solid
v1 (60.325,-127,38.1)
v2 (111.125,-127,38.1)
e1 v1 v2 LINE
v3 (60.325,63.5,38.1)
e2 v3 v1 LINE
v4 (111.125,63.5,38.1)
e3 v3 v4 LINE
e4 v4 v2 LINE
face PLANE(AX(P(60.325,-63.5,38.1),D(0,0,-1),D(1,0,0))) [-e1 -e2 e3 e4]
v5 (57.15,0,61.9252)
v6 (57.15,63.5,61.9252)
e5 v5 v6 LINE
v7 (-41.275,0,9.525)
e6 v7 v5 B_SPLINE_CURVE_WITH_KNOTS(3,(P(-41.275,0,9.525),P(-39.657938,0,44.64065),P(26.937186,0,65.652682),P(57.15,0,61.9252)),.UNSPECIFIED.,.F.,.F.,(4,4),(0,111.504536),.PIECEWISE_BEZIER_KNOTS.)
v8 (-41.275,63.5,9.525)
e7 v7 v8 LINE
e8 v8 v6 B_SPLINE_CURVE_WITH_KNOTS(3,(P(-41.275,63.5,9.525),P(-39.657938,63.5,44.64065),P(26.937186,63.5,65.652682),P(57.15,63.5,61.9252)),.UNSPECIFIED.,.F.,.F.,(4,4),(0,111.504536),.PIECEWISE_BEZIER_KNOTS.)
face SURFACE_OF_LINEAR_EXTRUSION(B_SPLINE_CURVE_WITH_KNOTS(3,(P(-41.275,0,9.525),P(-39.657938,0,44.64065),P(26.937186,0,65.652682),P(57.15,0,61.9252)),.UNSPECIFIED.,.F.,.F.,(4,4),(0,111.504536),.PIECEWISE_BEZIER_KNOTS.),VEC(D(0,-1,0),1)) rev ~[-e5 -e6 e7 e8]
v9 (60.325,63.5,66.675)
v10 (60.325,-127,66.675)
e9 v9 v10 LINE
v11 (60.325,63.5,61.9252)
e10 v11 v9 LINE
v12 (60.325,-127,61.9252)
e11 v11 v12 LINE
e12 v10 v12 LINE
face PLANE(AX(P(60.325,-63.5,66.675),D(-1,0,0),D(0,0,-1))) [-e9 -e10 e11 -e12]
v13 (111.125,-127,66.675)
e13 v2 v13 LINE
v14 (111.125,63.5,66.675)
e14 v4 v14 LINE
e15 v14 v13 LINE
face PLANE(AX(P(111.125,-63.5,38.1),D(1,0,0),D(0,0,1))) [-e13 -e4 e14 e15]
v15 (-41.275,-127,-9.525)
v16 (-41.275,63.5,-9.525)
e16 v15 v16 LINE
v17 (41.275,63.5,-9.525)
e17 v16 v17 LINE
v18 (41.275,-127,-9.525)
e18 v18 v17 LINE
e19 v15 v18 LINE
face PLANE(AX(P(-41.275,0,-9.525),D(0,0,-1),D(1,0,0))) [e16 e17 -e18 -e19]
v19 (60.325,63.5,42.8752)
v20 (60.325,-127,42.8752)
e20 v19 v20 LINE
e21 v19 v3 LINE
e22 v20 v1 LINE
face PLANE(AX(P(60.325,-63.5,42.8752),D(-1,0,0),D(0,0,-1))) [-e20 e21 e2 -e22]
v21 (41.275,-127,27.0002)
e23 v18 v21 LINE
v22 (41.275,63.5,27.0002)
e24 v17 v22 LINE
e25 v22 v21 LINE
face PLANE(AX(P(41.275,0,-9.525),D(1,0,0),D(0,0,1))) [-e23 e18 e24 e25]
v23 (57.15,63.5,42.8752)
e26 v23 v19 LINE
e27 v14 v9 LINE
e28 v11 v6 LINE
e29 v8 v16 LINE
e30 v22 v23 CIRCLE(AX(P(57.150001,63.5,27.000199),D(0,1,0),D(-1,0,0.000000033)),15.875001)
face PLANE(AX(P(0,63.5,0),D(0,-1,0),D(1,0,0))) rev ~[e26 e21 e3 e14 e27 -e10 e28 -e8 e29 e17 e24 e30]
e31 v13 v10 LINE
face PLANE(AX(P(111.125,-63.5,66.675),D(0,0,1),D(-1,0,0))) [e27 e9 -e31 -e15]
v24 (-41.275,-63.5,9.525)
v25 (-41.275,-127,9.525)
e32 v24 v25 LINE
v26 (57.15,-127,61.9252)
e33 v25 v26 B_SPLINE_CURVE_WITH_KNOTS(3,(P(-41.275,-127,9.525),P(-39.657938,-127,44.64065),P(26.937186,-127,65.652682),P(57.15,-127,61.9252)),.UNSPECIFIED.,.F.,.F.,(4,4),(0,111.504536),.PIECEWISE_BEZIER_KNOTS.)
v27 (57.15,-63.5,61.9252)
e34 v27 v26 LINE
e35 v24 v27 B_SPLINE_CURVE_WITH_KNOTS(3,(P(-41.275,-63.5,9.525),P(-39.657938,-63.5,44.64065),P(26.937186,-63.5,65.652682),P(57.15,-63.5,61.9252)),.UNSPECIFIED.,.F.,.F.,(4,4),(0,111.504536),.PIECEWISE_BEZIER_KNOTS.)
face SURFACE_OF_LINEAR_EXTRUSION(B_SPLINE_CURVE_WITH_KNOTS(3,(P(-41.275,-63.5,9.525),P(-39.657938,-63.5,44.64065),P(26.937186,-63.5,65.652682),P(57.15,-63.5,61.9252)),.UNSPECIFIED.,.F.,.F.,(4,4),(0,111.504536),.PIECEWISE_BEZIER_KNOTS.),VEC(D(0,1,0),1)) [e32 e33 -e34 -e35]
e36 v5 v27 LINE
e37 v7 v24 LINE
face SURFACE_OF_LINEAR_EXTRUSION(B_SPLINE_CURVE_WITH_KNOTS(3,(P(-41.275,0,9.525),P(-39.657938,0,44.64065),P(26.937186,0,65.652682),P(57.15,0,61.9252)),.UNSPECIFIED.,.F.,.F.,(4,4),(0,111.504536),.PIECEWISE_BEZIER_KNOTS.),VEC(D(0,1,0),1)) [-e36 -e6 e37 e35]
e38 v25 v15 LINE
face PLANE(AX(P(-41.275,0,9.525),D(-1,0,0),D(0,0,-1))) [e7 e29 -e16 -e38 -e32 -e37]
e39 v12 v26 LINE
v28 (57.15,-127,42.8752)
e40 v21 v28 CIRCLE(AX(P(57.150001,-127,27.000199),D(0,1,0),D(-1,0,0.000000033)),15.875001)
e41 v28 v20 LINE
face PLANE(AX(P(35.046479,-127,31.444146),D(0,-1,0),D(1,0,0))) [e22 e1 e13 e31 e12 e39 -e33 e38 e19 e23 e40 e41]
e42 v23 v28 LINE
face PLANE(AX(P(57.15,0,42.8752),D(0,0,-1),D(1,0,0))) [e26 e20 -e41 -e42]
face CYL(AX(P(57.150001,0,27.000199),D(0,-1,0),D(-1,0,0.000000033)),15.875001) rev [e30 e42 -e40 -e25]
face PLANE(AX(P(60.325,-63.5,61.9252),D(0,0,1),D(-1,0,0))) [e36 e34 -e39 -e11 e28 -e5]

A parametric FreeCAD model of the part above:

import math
import FreeCAD as App
import Part
import Sketcher
from FreeCAD import Vector
Q = App.Units.Quantity

doc = App.newDocument("Part")
body = doc.addObject("PartDesign::Body", "Body")

# Sketch on XZ plane
sketch1 = doc.addObject("Sketcher::SketchObject", "Sketch")
body.addObject(sketch1)
sketch1.AttachmentSupport = (doc.XZ_Plane, [""])
sketch1.MapMode = "FlatFace"
sketch1.addGeometry(Part.LineSegment(Vector(41.275, -9.525, 0), Vector(41.275, 27.0002, 0)), False)
sketch1.addGeometry(Part.ArcOfCircle(Part.Circle(Vector(57.150001, 27.000199, 0), Vector(0, 0, 1), 15.875001), math.radians(90.000002), math.radians(179.999998)), False)
sketch1.addGeometry(Part.LineSegment(Vector(57.15, 42.8752, 0), Vector(60.325, 42.8752, 0)), False)
sketch1.addGeometry(Part.LineSegment(Vector(60.325, 42.8752, 0), Vector(60.325, 38.1, 0)), False)
sketch1.addGeometry(Part.LineSegment(Vector(60.325, 38.1, 0), Vector(111.125, 38.1, 0)), False)
sketch1.addGeometry(Part.LineSegment(Vector(111.125, 38.1, 0), Vector(111.125, 66.675, 0)), False)
sketch1.addGeometry(Part.LineSegment(Vector(111.125, 66.675, 0), Vector(60.325, 66.675, 0)), False)
sketch1.addGeometry(Part.LineSegment(Vector(60.325, 66.675, 0), Vector(60.325, 61.9252, 0)), False)
sketch1.addGeometry(Part.LineSegment(Vector(60.325, 61.9252, 0), Vector(57.15, 61.9252, 0)), False)
sketch1.addGeometry(Part.BSplineCurve([Vector(-41.275, 9.525, 0), Vector(-39.657938, 44.64065, 0), Vector(26.937186, 65.652682, 0), Vector(57.15, 61.9252, 0)], [4, 4], [0, 111.504536], False, 3, [1, 1, 1, 1], False), False)
sketch1.addGeometry(Part.LineSegment(Vector(-41.275, 9.525, 0), Vector(-41.275, -9.525, 0)), False)
sketch1.addGeometry(Part.LineSegment(Vector(-41.275, -9.525, 0), Vector(41.275, -9.525, 0)), False)
sketch1.addConstraint(Sketcher.Constraint("Block", 9))
sketch1.addConstraint(Sketcher.Constraint("Tangent", 0, 2, 1, 2))
sketch1.addConstraint(Sketcher.Constraint("Tangent", 1, 1, 2, 1))
sketch1.addConstraint(Sketcher.Constraint("Coincident", 2, 2, 3, 1))
sketch1.addConstraint(Sketcher.Constraint("Coincident", 3, 2, 4, 1))
sketch1.addConstraint(Sketcher.Constraint("Coincident", 4, 2, 5, 1))
sketch1.addConstraint(Sketcher.Constraint("Coincident", 5, 2, 6, 1))
sketch1.addConstraint(Sketcher.Constraint("Coincident", 6, 2, 7, 1))
sketch1.addConstraint(Sketcher.Constraint("Coincident", 7, 2, 8, 1))
sketch1.addConstraint(Sketcher.Constraint("Coincident", 8, 2, 9, 2))
sketch1.addConstraint(Sketcher.Constraint("Coincident", 9, 1, 10, 1))
sketch1.addConstraint(Sketcher.Constraint("Coincident", 10, 2, 11, 1))
sketch1.addConstraint(Sketcher.Constraint("Coincident", 11, 2, 0, 1))
sketch1.addConstraint(Sketcher.Constraint("Vertical", 0))
sketch1.addConstraint(Sketcher.Constraint("Horizontal", 2))
sketch1.addConstraint(Sketcher.Constraint("Vertical", 3))
sketch1.addConstraint(Sketcher.Constraint("Horizontal", 4))
sketch1.addConstraint(Sketcher.Constraint("Vertical", 5))
sketch1.addConstraint(Sketcher.Constraint("Horizontal", 6))
sketch1.addConstraint(Sketcher.Constraint("Vertical", 7))
sketch1.addConstraint(Sketcher.Constraint("Horizontal", 8))
sketch1.addConstraint(Sketcher.Constraint("Vertical", 10))
sketch1.addConstraint(Sketcher.Constraint("Horizontal", 11))
sketch1.addConstraint(Sketcher.Constraint("Vertical", 3, 2, 6, 2))
sketch1.addConstraint(Sketcher.Constraint("Vertical", 1, 1, 8, 2))
sketch1.addConstraint(Sketcher.Constraint("DistanceX", 4, 1, 4, 2, Q("2 in")))
sketch1.addConstraint(Sketcher.Constraint("Radius", 1, Q("0.625 in")))
sketch1.addConstraint(Sketcher.Constraint("DistanceX", 10, 2, 3, 2, Q("4 in")))
sketch1.addConstraint(Sketcher.Constraint("DistanceY", 10, 2, 10, 1, Q("0.75 in")))
sketch1.addConstraint(Sketcher.Constraint("DistanceY", -1, 1, 3, 2, Q("1.5 in")))
sketch1.addConstraint(Sketcher.Constraint("DistanceY", 0, 1, 0, 2, Q("1.438 in")))
sketch1.addConstraint(Sketcher.Constraint("DistanceY", 5, 1, 5, 2, Q("1.125 in")))
pad1 = doc.addObject("PartDesign::Pad", "Pad")
body.addObject(pad1)
pad1.Profile = sketch1
pad1.Length = Q("5 in")
pad1.Midplane = True

# Sketch on XZ plane
sketch2 = doc.addObject("Sketcher::SketchObject", "Sketch001")
body.addObject(sketch2)
sketch2.AttachmentSupport = (doc.XZ_Plane, [""])
sketch2.MapMode = "FlatFace"
sketch2.AttachmentOffset = App.Placement(Vector(0, 0, 2.5 * 25.4), App.Rotation())
sketch2.addGeometry(Part.LineSegment(Vector(41.275, -9.525, 0), Vector(41.275, 27.0002, 0)), False)
sketch2.addGeometry(Part.ArcOfCircle(Part.Circle(Vector(57.150001, 27.000199, 0), Vector(0, 0, 1), 15.875001), math.radians(90.000002), math.radians(179.999998)), False)
sketch2.addGeometry(Part.LineSegment(Vector(57.15, 42.8752, 0), Vector(60.325, 42.8752, 0)), False)
sketch2.addGeometry(Part.LineSegment(Vector(60.325, 42.8752, 0), Vector(60.325, 38.1, 0)), False)
sketch2.addGeometry(Part.LineSegment(Vector(60.325, 38.1, 0), Vector(111.125, 38.1, 0)), False)
sketch2.addGeometry(Part.LineSegment(Vector(111.125, 38.1, 0), Vector(111.125, 66.675, 0)), False)
sketch2.addGeometry(Part.LineSegment(Vector(111.125, 66.675, 0), Vector(60.325, 66.675, 0)), False)
sketch2.addGeometry(Part.LineSegment(Vector(60.325, 66.675, 0), Vector(60.325, 61.9252, 0)), False)
sketch2.addGeometry(Part.LineSegment(Vector(60.325, 61.9252, 0), Vector(57.15, 61.9252, 0)), False)
sketch2.addGeometry(Part.BSplineCurve([Vector(-41.275, 9.525, 0), Vector(-39.657938, 44.64065, 0), Vector(26.937186, 65.652682, 0), Vector(57.15, 61.9252, 0)], [4, 4], [0, 111.504536], False, 3, [1, 1, 1, 1], False), False)
sketch2.addGeometry(Part.LineSegment(Vector(-41.275, 9.525, 0), Vector(-41.275, -9.525, 0)), False)
sketch2.addGeometry(Part.LineSegment(Vector(-41.275, -9.525, 0), Vector(41.275, -9.525, 0)), False)
sketch2.addConstraint(Sketcher.Constraint("Block", 9))
sketch2.addConstraint(Sketcher.Constraint("Tangent", 0, 2, 1, 2))
sketch2.addConstraint(Sketcher.Constraint("Tangent", 1, 1, 2, 1))
sketch2.addConstraint(Sketcher.Constraint("Coincident", 2, 2, 3, 1))
sketch2.addConstraint(Sketcher.Constraint("Coincident", 3, 2, 4, 1))
sketch2.addConstraint(Sketcher.Constraint("Coincident", 4, 2, 5, 1))
sketch2.addConstraint(Sketcher.Constraint("Coincident", 5, 2, 6, 1))
sketch2.addConstraint(Sketcher.Constraint("Coincident", 6, 2, 7, 1))
sketch2.addConstraint(Sketcher.Constraint("Coincident", 7, 2, 8, 1))
sketch2.addConstraint(Sketcher.Constraint("Coincident", 8, 2, 9, 2))
sketch2.addConstraint(Sketcher.Constraint("Coincident", 9, 1, 10, 1))
sketch2.addConstraint(Sketcher.Constraint("Coincident", 10, 2, 11, 1))
sketch2.addConstraint(Sketcher.Constraint("Coincident", 11, 2, 0, 1))
sketch2.addConstraint(Sketcher.Constraint("Vertical", 0))
sketch2.addConstraint(Sketcher.Constraint("Horizontal", 2))
sketch2.addConstraint(Sketcher.Constraint("Vertical", 3))
sketch2.addConstraint(Sketcher.Constraint("Horizontal", 4))
sketch2.addConstraint(Sketcher.Constraint("Vertical", 5))
sketch2.addConstraint(Sketcher.Constraint("Horizontal", 6))
sketch2.addConstraint(Sketcher.Constraint("Vertical", 7))
sketch2.addConstraint(Sketcher.Constraint("Horizontal", 8))
sketch2.addConstraint(Sketcher.Constraint("Vertical", 10))
sketch2.addConstraint(Sketcher.Constraint("Horizontal", 11))
sketch2.addConstraint(Sketcher.Constraint("Vertical", 3, 2, 6, 2))
sketch2.addConstraint(Sketcher.Constraint("Vertical", 1, 1, 8, 2))
sketch2.addConstraint(Sketcher.Constraint("DistanceX", 4, 1, 4, 2, Q("2 in")))
sketch2.addConstraint(Sketcher.Constraint("Radius", 1, Q("0.625 in")))
sketch2.addConstraint(Sketcher.Constraint("DistanceX", 10, 2, 3, 2, Q("4 in")))
sketch2.addConstraint(Sketcher.Constraint("DistanceY", 10, 2, 10, 1, Q("0.75 in")))
sketch2.addConstraint(Sketcher.Constraint("DistanceY", -1, 1, 3, 2, Q("1.5 in")))
sketch2.addConstraint(Sketcher.Constraint("DistanceY", 0, 1, 0, 2, Q("1.438 in")))
sketch2.addConstraint(Sketcher.Constraint("DistanceY", 5, 1, 5, 2, Q("1.125 in")))
pad2 = doc.addObject("PartDesign::Pad", "Pad001")
body.addObject(pad2)
pad2.Profile = sketch2
pad2.Length = Q("5 in")
pad2.Midplane = True

doc.recompute()
